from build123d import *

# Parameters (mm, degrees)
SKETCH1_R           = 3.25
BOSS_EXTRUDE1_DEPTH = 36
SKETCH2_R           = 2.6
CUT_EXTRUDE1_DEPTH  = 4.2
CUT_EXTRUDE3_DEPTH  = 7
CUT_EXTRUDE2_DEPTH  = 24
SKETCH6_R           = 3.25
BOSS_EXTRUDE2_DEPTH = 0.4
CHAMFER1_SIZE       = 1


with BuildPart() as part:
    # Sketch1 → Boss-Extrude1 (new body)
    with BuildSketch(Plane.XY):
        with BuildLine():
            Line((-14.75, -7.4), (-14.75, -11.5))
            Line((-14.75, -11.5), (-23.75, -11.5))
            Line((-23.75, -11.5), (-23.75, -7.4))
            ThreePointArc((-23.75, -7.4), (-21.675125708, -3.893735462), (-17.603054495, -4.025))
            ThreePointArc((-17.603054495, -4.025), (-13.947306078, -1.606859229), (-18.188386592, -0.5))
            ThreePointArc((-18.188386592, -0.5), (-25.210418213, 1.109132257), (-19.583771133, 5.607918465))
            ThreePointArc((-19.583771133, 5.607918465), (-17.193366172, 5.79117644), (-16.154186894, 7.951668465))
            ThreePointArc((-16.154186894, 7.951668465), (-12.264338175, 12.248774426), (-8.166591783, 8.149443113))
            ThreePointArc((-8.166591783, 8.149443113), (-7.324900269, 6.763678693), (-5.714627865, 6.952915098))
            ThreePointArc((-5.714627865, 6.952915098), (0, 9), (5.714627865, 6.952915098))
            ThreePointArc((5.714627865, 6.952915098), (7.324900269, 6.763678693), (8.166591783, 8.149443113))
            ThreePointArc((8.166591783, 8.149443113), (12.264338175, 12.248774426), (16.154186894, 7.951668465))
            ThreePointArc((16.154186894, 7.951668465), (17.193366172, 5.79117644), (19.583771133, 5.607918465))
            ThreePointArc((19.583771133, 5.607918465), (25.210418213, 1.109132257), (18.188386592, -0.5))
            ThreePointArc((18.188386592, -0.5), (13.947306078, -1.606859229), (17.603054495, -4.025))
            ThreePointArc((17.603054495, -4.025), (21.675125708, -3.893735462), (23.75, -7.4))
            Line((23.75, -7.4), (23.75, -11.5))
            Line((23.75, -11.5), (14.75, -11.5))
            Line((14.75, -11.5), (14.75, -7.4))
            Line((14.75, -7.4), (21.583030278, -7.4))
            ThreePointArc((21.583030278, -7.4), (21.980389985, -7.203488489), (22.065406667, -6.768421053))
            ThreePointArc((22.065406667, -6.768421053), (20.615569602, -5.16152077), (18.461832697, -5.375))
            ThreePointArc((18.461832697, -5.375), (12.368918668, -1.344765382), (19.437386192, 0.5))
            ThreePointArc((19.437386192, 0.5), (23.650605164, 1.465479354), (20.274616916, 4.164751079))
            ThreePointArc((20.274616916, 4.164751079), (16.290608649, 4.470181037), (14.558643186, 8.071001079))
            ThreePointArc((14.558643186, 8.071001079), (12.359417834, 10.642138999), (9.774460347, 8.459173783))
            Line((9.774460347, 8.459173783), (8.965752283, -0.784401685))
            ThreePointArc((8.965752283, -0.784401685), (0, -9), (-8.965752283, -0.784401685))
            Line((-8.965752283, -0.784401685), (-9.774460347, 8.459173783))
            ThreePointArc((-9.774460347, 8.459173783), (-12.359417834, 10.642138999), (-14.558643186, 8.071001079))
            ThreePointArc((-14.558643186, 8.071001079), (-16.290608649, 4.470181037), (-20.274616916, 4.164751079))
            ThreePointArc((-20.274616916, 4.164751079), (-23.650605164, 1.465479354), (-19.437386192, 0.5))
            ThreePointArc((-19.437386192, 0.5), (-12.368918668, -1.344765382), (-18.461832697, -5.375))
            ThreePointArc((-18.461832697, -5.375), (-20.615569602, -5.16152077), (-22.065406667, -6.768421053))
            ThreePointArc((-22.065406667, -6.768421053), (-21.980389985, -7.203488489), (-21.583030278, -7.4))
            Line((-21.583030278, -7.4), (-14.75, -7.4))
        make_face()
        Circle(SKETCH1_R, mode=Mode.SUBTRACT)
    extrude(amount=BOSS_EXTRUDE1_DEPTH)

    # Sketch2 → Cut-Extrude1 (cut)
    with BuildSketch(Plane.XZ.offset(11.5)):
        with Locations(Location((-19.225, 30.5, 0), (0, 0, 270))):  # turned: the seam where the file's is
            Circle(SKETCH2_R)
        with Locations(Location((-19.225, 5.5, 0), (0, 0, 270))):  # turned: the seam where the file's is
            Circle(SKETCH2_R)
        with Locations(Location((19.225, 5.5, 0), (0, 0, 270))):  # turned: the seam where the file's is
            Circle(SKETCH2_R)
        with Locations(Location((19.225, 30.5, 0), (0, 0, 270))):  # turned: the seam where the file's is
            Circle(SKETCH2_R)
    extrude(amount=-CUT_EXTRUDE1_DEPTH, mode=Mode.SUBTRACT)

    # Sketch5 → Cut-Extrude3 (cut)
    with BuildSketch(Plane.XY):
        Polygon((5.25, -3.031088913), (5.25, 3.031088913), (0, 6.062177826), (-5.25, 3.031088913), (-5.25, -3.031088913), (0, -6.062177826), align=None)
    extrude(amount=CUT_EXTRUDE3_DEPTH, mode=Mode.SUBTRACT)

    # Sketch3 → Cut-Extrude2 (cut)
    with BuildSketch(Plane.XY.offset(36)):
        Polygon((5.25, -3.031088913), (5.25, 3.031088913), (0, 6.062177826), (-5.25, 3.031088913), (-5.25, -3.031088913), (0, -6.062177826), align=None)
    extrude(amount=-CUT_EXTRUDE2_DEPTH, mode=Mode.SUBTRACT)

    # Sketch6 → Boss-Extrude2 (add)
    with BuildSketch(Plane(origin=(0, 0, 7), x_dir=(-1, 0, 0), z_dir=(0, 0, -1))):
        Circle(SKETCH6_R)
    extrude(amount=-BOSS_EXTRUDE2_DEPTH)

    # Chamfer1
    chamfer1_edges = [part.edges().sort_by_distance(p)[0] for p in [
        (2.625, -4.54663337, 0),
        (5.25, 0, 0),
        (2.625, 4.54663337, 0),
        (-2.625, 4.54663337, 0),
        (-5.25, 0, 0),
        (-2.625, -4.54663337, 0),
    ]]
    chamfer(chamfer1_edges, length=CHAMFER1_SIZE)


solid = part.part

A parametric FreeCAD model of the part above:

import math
import FreeCAD as App
import Part
import Sketcher
from FreeCAD import Vector
Q = App.Units.Quantity


def edges_at(feature, points):
    """Names of the edges that pass closest to the given points."""
    edges = feature.Shape.Edges
    near = lambda p: min(range(len(edges)), key=lambda i: edges[i].distToShape(Part.Vertex(*p))[0])
    return sorted({f"Edge{near(p) + 1}" for p in points})

doc = App.newDocument("Part")
params = doc.addObject("Spreadsheet::Sheet", "Params")
for row, (alias, value) in enumerate([
    ("sketch1_radius", "4 mm"),
    ("sketch1_radius2", "9 mm"),
    ("sketch1_diameter", "6.5 mm"),
    ("sketch1_radius3", "0.5 mm"),
    ("sketch1_radius4", "2.4 mm"),
    ("pad1_length", "36 mm"),
    ("sketch2_diameter", "5.2 mm"),
    ("pocket1_length", "4.2 mm"),
    ("pocket2_length", "7 mm"),
    ("pocket3_length", "24 mm"),
    ("sketch5_diameter", "6.5 mm"),
    ("pad2_length", "0.4 mm"),
    ("chamfer_size", "1 mm"),
], start=1):
    params.set(f"A{row}", alias)
    params.set(f"B{row}", "=" + value)
    params.setAlias(f"B{row}", alias)

body = doc.addObject("PartDesign::Body", "Body")

# Sketch on XY plane
sketch1 = body.newObject("Sketcher::SketchObject", "Sketch")
sketch1.AttachmentSupport = (doc.getObject("XY_Plane"), [""])
sketch1.MapMode = "FlatFace"
sketch1.addGeometry(Part.LineSegment(Vector(-14.75, -11.5, 0), Vector(-14.75, -7.4, 0)), False)
sketch1.addGeometry(Part.LineSegment(Vector(-14.75, -7.4, 0), Vector(-21.58303, -7.4, 0)), False)
sketch1.addGeometry(Part.ArcOfCircle(Part.Circle(Vector(-21.58303, -6.9, 0), Vector(0, 0, 1), 0.5), math.radians(164.742477), math.radians(270)), False)
sketch1.addGeometry(Part.ArcOfCircle(Part.Circle(Vector(-19.75, -7.4, 0), Vector(0, 0, 1), 2.4), math.radians(57.538255), math.radians(164.742477)), False)
sketch1.addGeometry(Part.ArcOfCircle(Part.Circle(Vector(-16.314887, -2, 0), Vector(0, 0, 1), 4), math.radians(-122.461745), math.radians(141.317813)), False)
sketch1.addGeometry(Part.ArcOfCircle(Part.Circle(Vector(-21.310886, 2, 0), Vector(0, 0, 1), 2.4), math.radians(64.419511), math.radians(321.317813)), False)
sketch1.addGeometry(Part.ArcOfCircle(Part.Circle(Vector(-18.547502, 7.77267, 0), Vector(0, 0, 1), 4), math.radians(-115.580489), math.radians(4.277256)), False)
sketch1.addGeometry(Part.ArcOfCircle(Part.Circle(Vector(-12.165328, 8.25, 0), Vector(0, 0, 1), 2.4), math.radians(5), math.radians(184.277256)), False)
sketch1.addGeometry(Part.LineSegment(Vector(-9.77446, 8.459174, 0), Vector(-8.965752, -0.784402, 0)), False)
sketch1.addGeometry(Part.ArcOfCircle(Part.Circle(Vector(0, 0, 0), Vector(0, 0, 1), 9), math.radians(-175), math.radians(-5)), False)
sketch1.addGeometry(Part.LineSegment(Vector(8.965752, -0.784402, 0), Vector(9.77446, 8.459174, 0)), False)
sketch1.addGeometry(Part.ArcOfCircle(Part.Circle(Vector(12.165328, 8.25, 0), Vector(0, 0, 1), 2.4), math.radians(-4.277256), math.radians(175)), False)
sketch1.addGeometry(Part.ArcOfCircle(Part.Circle(Vector(18.547502, 7.77267, 0), Vector(0, 0, 1), 4), math.radians(175.722744), math.radians(295.580489)), False)
sketch1.addGeometry(Part.ArcOfCircle(Part.Circle(Vector(21.310886, 2, 0), Vector(0, 0, 1), 2.4), math.radians(-141.317813), math.radians(115.580489)), False)
sketch1.addGeometry(Part.ArcOfCircle(Part.Circle(Vector(16.314887, -2, 0), Vector(0, 0, 1), 4), math.radians(38.682187), math.radians(302.461745)), False)
sketch1.addGeometry(Part.ArcOfCircle(Part.Circle(Vector(19.75, -7.4, 0), Vector(0, 0, 1), 2.4), math.radians(15.257523), math.radians(122.461745)), False)
sketch1.addGeometry(Part.ArcOfCircle(Part.Circle(Vector(21.58303, -6.9, 0), Vector(0, 0, 1), 0.5), math.radians(-90), math.radians(15.257523)), False)
sketch1.addGeometry(Part.LineSegment(Vector(21.58303, -7.4, 0), Vector(14.75, -7.4, 0)), False)
sketch1.addGeometry(Part.LineSegment(Vector(14.75, -7.4, 0), Vector(14.75, -11.5, 0)), False)
sketch1.addGeometry(Part.LineSegment(Vector(14.75, -11.5, 0), Vector(23.75, -11.5, 0)), False)
sketch1.addGeometry(Part.LineSegment(Vector(23.75, -11.5, 0), Vector(23.75, -7.4, 0)), False)
sketch1.addGeometry(Part.ArcOfCircle(Part.Circle(Vector(19.75, -7.4, 0), Vector(0, 0, 1), 4), math.radians(0), math.radians(122.461745)), False)
sketch1.addGeometry(Part.ArcOfCircle(Part.Circle(Vector(16.314887, -2, 0), Vector(0, 0, 1), 2.4), math.radians(38.682187), math.radians(302.461745)), False)
sketch1.addGeometry(Part.ArcOfCircle(Part.Circle(Vector(21.310886, 2, 0), Vector(0, 0, 1), 4), math.radians(-141.317813), math.radians(115.580489)), False)
sketch1.addGeometry(Part.ArcOfCircle(Part.Circle(Vector(18.547502, 7.77267, 0), Vector(0, 0, 1), 2.4), math.radians(175.722744), math.radians(295.580489)), False)
sketch1.addGeometry(Part.ArcOfCircle(Part.Circle(Vector(12.165328, 8.25, 0), Vector(0, 0, 1), 4), math.radians(-4.277256), math.radians(181.440523)), False)
sketch1.addGeometry(Part.ArcOfCircle(Part.Circle(Vector(6.667066, 8.111734, 0), Vector(0, 0, 1), 1.5), math.radians(-129.416918), math.radians(1.440523)), False)
sketch1.addGeometry(Part.ArcOfCircle(Part.Circle(Vector(0, 0, 0), Vector(0, 0, 1), 9), math.radians(50.583082), math.radians(129.416918)), False)
sketch1.addGeometry(Part.ArcOfCircle(Part.Circle(Vector(-6.667066, 8.111734, 0), Vector(0, 0, 1), 1.5), math.radians(178.559477), math.radians(309.416918)), False)
sketch1.addGeometry(Part.ArcOfCircle(Part.Circle(Vector(-12.165328, 8.25, 0), Vector(0, 0, 1), 4), math.radians(-1.440523), math.radians(184.277256)), False)
sketch1.addGeometry(Part.ArcOfCircle(Part.Circle(Vector(-18.547502, 7.77267, 0), Vector(0, 0, 1), 2.4), math.radians(-115.580489), math.radians(4.277256)), False)
sketch1.addGeometry(Part.ArcOfCircle(Part.Circle(Vector(-21.310886, 2, 0), Vector(0, 0, 1), 4), math.radians(64.419511), math.radians(321.317813)), False)
sketch1.addGeometry(Part.ArcOfCircle(Part.Circle(Vector(-16.314887, -2, 0), Vector(0, 0, 1), 2.4), math.radians(-122.461745), math.radians(141.317813)), False)
sketch1.addGeometry(Part.ArcOfCircle(Part.Circle(Vector(-19.75, -7.4, 0), Vector(0, 0, 1), 4), math.radians(57.538255), math.radians(180)), False)
sketch1.addGeometry(Part.LineSegment(Vector(-23.75, -7.4, 0), Vector(-23.75, -11.5, 0)), False)
sketch1.addGeometry(Part.LineSegment(Vector(-23.75, -11.5, 0), Vector(-14.75, -11.5, 0)), False)
sketch1.addGeometry(Part.Circle(Vector(0, 0, 0), Vector(0, 0, 1), 3.25), False)
sketch1.addConstraint(Sketcher.Constraint("Coincident", 0, 2, 1, 1))
sketch1.addConstraint(Sketcher.Constraint("Tangent", 1, 2, 2, 2))
sketch1.addConstraint(Sketcher.Constraint("Tangent", 2, 1, 3, 2))
sketch1.addConstraint(Sketcher.Constraint("Tangent", 3, 1, 4, 1))
sketch1.addConstraint(Sketcher.Constraint("Tangent", 4, 2, 5, 2))
sketch1.addConstraint(Sketcher.Constraint("Tangent", 5, 1, 6, 1))
sketch1.addConstraint(Sketcher.Constraint("Tangent", 6, 2, 7, 2))
sketch1.addConstraint(Sketcher.Constraint("Tangent", 7, 1, 8, 1))
sketch1.addConstraint(Sketcher.Constraint("Tangent", 8, 2, 9, 1))
sketch1.addConstraint(Sketcher.Constraint("Tangent", 9, 2, 10, 1))
sketch1.addConstraint(Sketcher.Constraint("Tangent", 10, 2, 11, 2))
sketch1.addConstraint(Sketcher.Constraint("Tangent", 11, 1, 12, 1))
sketch1.addConstraint(Sketcher.Constraint("Tangent", 12, 2, 13, 2))
sketch1.addConstraint(Sketcher.Constraint("Tangent", 13, 1, 14, 1))
sketch1.addConstraint(Sketcher.Constraint("Tangent", 14, 2, 15, 2))
sketch1.addConstraint(Sketcher.Constraint("Tangent", 15, 1, 16, 2))
sketch1.addConstraint(Sketcher.Constraint("Tangent", 16, 1, 17, 1))
sketch1.addConstraint(Sketcher.Constraint("Coincident", 17, 2, 18, 1))
sketch1.addConstraint(Sketcher.Constraint("Coincident", 18, 2, 19, 1))
sketch1.addConstraint(Sketcher.Constraint("Coincident", 19, 2, 20, 1))
sketch1.addConstraint(Sketcher.Constraint("Tangent", 20, 2, 21, 1))
sketch1.addConstraint(Sketcher.Constraint("Tangent", 21, 2, 22, 2))
sketch1.addConstraint(Sketcher.Constraint("Tangent", 22, 1, 23, 1))
sketch1.addConstraint(Sketcher.Constraint("Tangent", 23, 2, 24, 2))
sketch1.addConstraint(Sketcher.Constraint("Tangent", 24, 1, 25, 1))
sketch1.addConstraint(Sketcher.Constraint("Tangent", 25, 2, 26, 2))
sketch1.addConstraint(Sketcher.Constraint("Tangent", 26, 1, 27, 1))
sketch1.addConstraint(Sketcher.Constraint("Tangent", 27, 2, 28, 2))
sketch1.addConstraint(Sketcher.Constraint("Tangent", 28, 1, 29, 1))
sketch1.addConstraint(Sketcher.Constraint("Tangent", 29, 2, 30, 2))
sketch1.addConstraint(Sketcher.Constraint("Tangent", 30, 1, 31, 1))
sketch1.addConstraint(Sketcher.Constraint("Tangent", 31, 2, 32, 2))
sketch1.addConstraint(Sketcher.Constraint("Tangent", 32, 1, 33, 1))
sketch1.addConstraint(Sketcher.Constraint("Tangent", 33, 2, 34, 1))
sketch1.addConstraint(Sketcher.Constraint("Coincident", 34, 2, 35, 1))
sketch1.addConstraint(Sketcher.Constraint("Coincident", 35, 2, 0, 1))
sketch1.addConstraint(Sketcher.Constraint("Vertical", 0))
sketch1.addConstraint(Sketcher.Constraint("Horizontal", 1))
sketch1.addConstraint(Sketcher.Constraint("Horizontal", 17))
sketch1.addConstraint(Sketcher.Constraint("Vertical", 18))
sketch1.addConstraint(Sketcher.Constraint("Horizontal", 19))
sketch1.addConstraint(Sketcher.Constraint("Vertical", 20))
sketch1.addConstraint(Sketcher.Constraint("Vertical", 34))
sketch1.addConstraint(Sketcher.Constraint("Horizontal", 35))
sketch1.addConstraint(Sketcher.Constraint("Coincident", 9, 3, -1, 1))
sketch1.addConstraint(Sketcher.Constraint("Coincident", 27, 3, -1, 1))
sketch1.addConstraint(Sketcher.Constraint("Coincident", 36, 3, -1, 1))
sketch1.addConstraint(Sketcher.Constraint("Coincident", 21, 3, 15, 3))
sketch1.addConstraint(Sketcher.Constraint("Coincident", 22, 3, 14, 3))
sketch1.addConstraint(Sketcher.Constraint("Coincident", 23, 3, 13, 3))
sketch1.addConstraint(Sketcher.Constraint("Coincident", 24, 3, 12, 3))
sketch1.addConstraint(Sketcher.Constraint("Coincident", 25, 3, 11, 3))
sketch1.addConstraint(Sketcher.Constraint("Coincident", 29, 3, 7, 3))
sketch1.addConstraint(Sketcher.Constraint("Coincident", 30, 3, 6, 3))
sketch1.addConstraint(Sketcher.Constraint("Coincident", 31, 3, 5, 3))
sketch1.addConstraint(Sketcher.Constraint("Coincident", 32, 3, 4, 3))
sketch1.addConstraint(Sketcher.Constraint("Coincident", 33, 3, 3, 3))
sketch1.addConstraint(Sketcher.Constraint("Equal", 3, 5))
sketch1.addConstraint(Sketcher.Constraint("Equal", 4, 6))
sketch1.addConstraint(Sketcher.Constraint("Equal", 5, 7))
sketch1.addConstraint(Sketcher.Constraint("Equal", 7, 11))
sketch1.addConstraint(Sketcher.Constraint("Equal", 6, 12))
sketch1.addConstraint(Sketcher.Constraint("Equal", 11, 13))
sketch1.addConstraint(Sketcher.Constraint("Equal", 12, 14))
sketch1.addConstraint(Sketcher.Constraint("Equal", 13, 15))
sketch1.addConstraint(Sketcher.Constraint("Equal", 2, 16))
sketch1.addConstraint(Sketcher.Constraint("Equal", 14, 21))
sketch1.addConstraint(Sketcher.Constraint("Equal", 9, 27))
sketch1.addConstraint(Sketcher.Constraint("Equal", 26, 28))
sketch1.addConstraint(Sketcher.Constraint("Equal", 25, 29))
sketch1.addConstraint(Sketcher.Constraint("Symmetric", 7, 3, 11, 3, -2))
sketch1.addConstraint(Sketcher.Constraint("Symmetric", 5, 3, 13, 3, -2))
sketch1.addConstraint(Sketcher.Constraint("Symmetric", 3, 3, 15, 3, -2))
sketch1.addConstraint(Sketcher.Constraint("Symmetric", 0, 2, 17, 2, -2))
sketch1.addConstraint(Sketcher.Constraint("Horizontal", 33, 3, 0, 2))
sketch1.addConstraint(Sketcher.Constraint("Horizontal", 19, 2, 34, 2))
sketch1.addConstraint(Sketcher.Constraint("Radius", 4, 4.0))
sketch1.addConstraint(Sketcher.Constraint("Radius", 9, 9.0))
sketch1.addConstraint(Sketcher.Constraint("Diameter", 36, 6.5))
sketch1.addConstraint(Sketcher.Constraint("Radius", 2, 0.5))
sketch1.addConstraint(Sketcher.Constraint("Radius", 3, 2.4))
sketch1.addConstraint(Sketcher.Constraint("Radius", 26, 1.5))
sketch1.addConstraint(Sketcher.Constraint("DistanceX", 19, 1, 19, 2, 9.0))
sketch1.addConstraint(Sketcher.Constraint("Angle", 8, Q("-85 deg")))
sketch1.addConstraint(Sketcher.Constraint("DistanceY", 0, 1, 0, 2, 4.1))
sketch1.addConstraint(Sketcher.Constraint("DistanceY", 4, 3, -1, 1, 2.0))
sketch1.addConstraint(Sketcher.Constraint("DistanceY", -1, 1, 5, 3, 2.0))
sketch1.addConstraint(Sketcher.Constraint("DistanceY", 2, 3, -1, 1, 6.9))
sketch1.addConstraint(Sketcher.Constraint("DistanceX", 3, 3, -1, 1, 19.75))
sketch1.addConstraint(Sketcher.Constraint("DistanceY", -1, 1, 7, 3, 8.25))
sketch1.setExpression("Constraints[76]", "Params.sketch1_radius")
sketch1.setExpression("Constraints[77]", "Params.sketch1_radius2")
sketch1.setExpression("Constraints[78]", "Params.sketch1_diameter")
sketch1.setExpression("Constraints[79]", "Params.sketch1_radius3")
sketch1.setExpression("Constraints[80]", "Params.sketch1_radius4")
pad1 = body.newObject("PartDesign::Pad", "Pad")
pad1.Profile = sketch1
pad1.setExpression("Length", "Params.pad1_length")

# Sketch on XZ plane
sketch2 = body.newObject("Sketcher::SketchObject", "Sketch001")
sketch2.AttachmentSupport = (doc.getObject("XZ_Plane"), [""])
sketch2.MapMode = "FlatFace"
sketch2.AttachmentOffset = App.Placement(Vector(0, 0, 11.5), App.Rotation())
sketch2.addGeometry(Part.Circle(Vector(-19.225, 30.5, 0), Vector(0, 0, 1), 2.6), False)
sketch2.addGeometry(Part.Circle(Vector(-19.225, 5.5, 0), Vector(0, 0, 1), 2.6), False)
sketch2.addGeometry(Part.Circle(Vector(19.225, 5.5, 0), Vector(0, 0, 1), 2.6), False)
sketch2.addGeometry(Part.Circle(Vector(19.225, 30.5, 0), Vector(0, 0, 1), 2.6), False)
sketch2.addConstraint(Sketcher.Constraint("Equal", 0, 1))
sketch2.addConstraint(Sketcher.Constraint("Equal", 1, 2))
sketch2.addConstraint(Sketcher.Constraint("Equal", 2, 3))
sketch2.addConstraint(Sketcher.Constraint("Symmetric", 1, 3, 2, 3, -2))
sketch2.addConstraint(Sketcher.Constraint("Symmetric", 0, 3, 3, 3, -2))
sketch2.addConstraint(Sketcher.Constraint("Vertical", 0, 3, 1, 3))
sketch2.addConstraint(Sketcher.Constraint("Diameter", 0, 5.2))
sketch2.addConstraint(Sketcher.Constraint("DistanceY", 1, 3, 0, 3, 25.0))
sketch2.addConstraint(Sketcher.Constraint("DistanceY", -1, 1, 0, 3, 30.5))
sketch2.addConstraint(Sketcher.Constraint("DistanceX", 1, 3, 2, 3, 38.45))
sketch2.setExpression("Constraints[6]", "Params.sketch2_diameter")
pocket1 = body.newObject("PartDesign::Pocket", "Pocket")
pocket1.Profile = sketch2
pocket1.setExpression("Length", "Params.pocket1_length")

# Sketch on XY plane
sketch3 = body.newObject("Sketcher::SketchObject", "Sketch002")
sketch3.AttachmentSupport = (doc.getObject("XY_Plane"), [""])
sketch3.MapMode = "FlatFace"
sketch3.addGeometry(Part.LineSegment(Vector(5.25, -3.031089, 0), Vector(5.25, 3.031089, 0)), False)
sketch3.addGeometry(Part.LineSegment(Vector(5.25, 3.031089, 0), Vector(0, 6.062178, 0)), False)
sketch3.addGeometry(Part.LineSegment(Vector(0, 6.062178, 0), Vector(-5.25, 3.031089, 0)), False)
sketch3.addGeometry(Part.LineSegment(Vector(-5.25, 3.031089, 0), Vector(-5.25, -3.031089, 0)), False)
sketch3.addGeometry(Part.LineSegment(Vector(-5.25, -3.031089, 0), Vector(0, -6.062178, 0)), False)
sketch3.addGeometry(Part.LineSegment(Vector(0, -6.062178, 0), Vector(5.25, -3.031089, 0)), False)
sketch3.addConstraint(Sketcher.Constraint("Coincident", 0, 2, 1, 1))
sketch3.addConstraint(Sketcher.Constraint("Coincident", 1, 2, 2, 1))
sketch3.addConstraint(Sketcher.Constraint("Coincident", 2, 2, 3, 1))
sketch3.addConstraint(Sketcher.Constraint("Coincident", 3, 2, 4, 1))
sketch3.addConstraint(Sketcher.Constraint("Coincident", 4, 2, 5, 1))
sketch3.addConstraint(Sketcher.Constraint("Coincident", 5, 2, 0, 1))
sketch3.addConstraint(Sketcher.Constraint("Vertical", 0))
sketch3.addConstraint(Sketcher.Constraint("Vertical", 3))
sketch3.addConstraint(Sketcher.Constraint("Symmetric", 0, 2, 3, 2, -1, 1))
sketch3.addConstraint(Sketcher.Constraint("Symmetric", 1, 2, 4, 2, -1, 1))
sketch3.addConstraint(Sketcher.Constraint("PointOnObject", 1, 2, -2))
sketch3.addConstraint(Sketcher.Constraint("Parallel", 2, 5))
sketch3.addConstraint(Sketcher.Constraint("Horizontal", 0, 2, 2, 2))
sketch3.addConstraint(Sketcher.Constraint("Angle", 1, Q("150 deg")))
sketch3.addConstraint(Sketcher.Constraint("DistanceX", 2, 2, 0, 2, 10.5))
sketch3.addConstraint(Sketcher.Constraint("DistanceY", 0, 1, 0, 2, 6.062178))
pocket2 = body.newObject("PartDesign::Pocket", "Pocket001")
pocket2.Profile = sketch3
pocket2.setExpression("Length", "Params.pocket2_length")
pocket2.Reversed = True

# Sketch on XY plane
sketch4 = body.newObject("Sketcher::SketchObject", "Sketch003")
sketch4.AttachmentSupport = (doc.getObject("XY_Plane"), [""])
sketch4.MapMode = "FlatFace"
sketch4.AttachmentOffset = App.Placement(Vector(0, 0, 36), App.Rotation())
sketch4.addGeometry(Part.LineSegment(Vector(5.25, -3.031089, 0), Vector(5.25, 3.031089, 0)), False)
sketch4.addGeometry(Part.LineSegment(Vector(5.25, 3.031089, 0), Vector(0, 6.062178, 0)), False)
sketch4.addGeometry(Part.LineSegment(Vector(0, 6.062178, 0), Vector(-5.25, 3.031089, 0)), False)
sketch4.addGeometry(Part.LineSegment(Vector(-5.25, 3.031089, 0), Vector(-5.25, -3.031089, 0)), False)
sketch4.addGeometry(Part.LineSegment(Vector(-5.25, -3.031089, 0), Vector(0, -6.062178, 0)), False)
sketch4.addGeometry(Part.LineSegment(Vector(0, -6.062178, 0), Vector(5.25, -3.031089, 0)), False)
sketch4.addConstraint(Sketcher.Constraint("Coincident", 0, 2, 1, 1))
sketch4.addConstraint(Sketcher.Constraint("Coincident", 1, 2, 2, 1))
sketch4.addConstraint(Sketcher.Constraint("Coincident", 2, 2, 3, 1))
sketch4.addConstraint(Sketcher.Constraint("Coincident", 3, 2, 4, 1))
sketch4.addConstraint(Sketcher.Constraint("Coincident", 4, 2, 5, 1))
sketch4.addConstraint(Sketcher.Constraint("Coincident", 5, 2, 0, 1))
sketch4.addConstraint(Sketcher.Constraint("Vertical", 0))
sketch4.addConstraint(Sketcher.Constraint("Vertical", 3))
sketch4.addConstraint(Sketcher.Constraint("Symmetric", 0, 2, 3, 2, -1, 1))
sketch4.addConstraint(Sketcher.Constraint("Symmetric", 1, 2, 4, 2, -1, 1))
sketch4.addConstraint(Sketcher.Constraint("PointOnObject", 1, 2, -2))
sketch4.addConstraint(Sketcher.Constraint("Parallel", 2, 5))
sketch4.addConstraint(Sketcher.Constraint("Horizontal", 0, 2, 2, 2))
sketch4.addConstraint(Sketcher.Constraint("Angle", 1, Q("150 deg")))
sketch4.addConstraint(Sketcher.Constraint("DistanceX", 2, 2, 0, 2, 10.5))
sketch4.addConstraint(Sketcher.Constraint("DistanceY", 0, 1, 0, 2, 6.062178))
pocket3 = body.newObject("PartDesign::Pocket", "Pocket002")
pocket3.Profile = sketch4
pocket3.setExpression("Length", "Params.pocket3_length")

# Sketch on XY plane
sketch5 = body.newObject("Sketcher::SketchObject", "Sketch004")
sketch5.AttachmentSupport = (doc.getObject("XY_Plane"), [""])
sketch5.MapMode = "FlatFace"
sketch5.AttachmentOffset = App.Placement(Vector(0, 0, 7), App.Rotation())
sketch5.addGeometry(Part.Circle(Vector(0, 0, 0), Vector(0, 0, 1), 3.25), False)
sketch5.addConstraint(Sketcher.Constraint("Coincident", 0, 3, -1, 1))
sketch5.addConstraint(Sketcher.Constraint("Diameter", 0, 6.5))
sketch5.setExpression("Constraints[1]", "Params.sketch5_diameter")
pad2 = body.newObject("PartDesign::Pad", "Pad001")
pad2.Profile = sketch5
pad2.setExpression("Length", "Params.pad2_length")
doc.recompute()

chamfer = body.newObject("PartDesign::Chamfer", "Chamfer")
chamfer.Base = (pad2, edges_at(pad2, [
    (2.625, -4.547, 0),
    (5.25, 0, 0),
    (2.625, 4.547, 0),
    (-2.625, 4.547, 0),
    (-5.25, 0, 0),
    (-2.625, -4.547, 0),
]))
chamfer.setExpression("Size", "Params.chamfer_size")

doc.recompute()
